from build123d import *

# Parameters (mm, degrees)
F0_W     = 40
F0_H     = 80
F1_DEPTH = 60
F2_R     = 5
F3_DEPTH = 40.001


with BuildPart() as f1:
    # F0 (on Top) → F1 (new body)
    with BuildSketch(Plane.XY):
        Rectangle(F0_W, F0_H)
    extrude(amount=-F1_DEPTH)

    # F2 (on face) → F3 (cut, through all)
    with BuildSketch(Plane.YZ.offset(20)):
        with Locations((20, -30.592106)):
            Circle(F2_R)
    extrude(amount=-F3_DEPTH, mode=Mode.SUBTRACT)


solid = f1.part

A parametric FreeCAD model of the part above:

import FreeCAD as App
import Part
import Sketcher
from FreeCAD import Vector

doc = App.newDocument("Part")
body = doc.addObject("PartDesign::Body", "Body")

sketch1 = body.newObject("Sketcher::SketchObject", "Sketch")
sketch1.AttachmentSupport = (doc.getObject("XY_Plane"), [""])
sketch1.MapMode = "FlatFace"
sketch1.addGeometry([
    Part.LineSegment(Vector(-20, 40, 0), Vector(-20, -40, 0)),
    Part.LineSegment(Vector(-20, -40, 0), Vector(20, -40, 0)),
    Part.LineSegment(Vector(20, -40, 0), Vector(20, 40, 0)),
    Part.LineSegment(Vector(20, 40, 0), Vector(-20, 40, 0)),
], False)
sketch1.addConstraint([
    Sketcher.Constraint("Coincident", 0, 2, 1, 1),
    Sketcher.Constraint("Coincident", 1, 2, 2, 1),
    Sketcher.Constraint("Coincident", 2, 2, 3, 1),
    Sketcher.Constraint("Coincident", 3, 2, 0, 1),
    Sketcher.Constraint("Vertical", 0),
    Sketcher.Constraint("Horizontal", 1),
    Sketcher.Constraint("Vertical", 2),
    Sketcher.Constraint("Horizontal", 3),
    Sketcher.Constraint("Symmetric", 0, 2, 2, 2, -1, 1),
    Sketcher.Constraint("DistanceX", 1, 1, 1, 2, 40.0),
    Sketcher.Constraint("DistanceY", 0, 2, 0, 1, 80.0),
])
pad1 = body.newObject("PartDesign::Pad", "Pad")
pad1.Profile = sketch1
pad1.Length = 60
pad1.Reversed = True

sketch2 = body.newObject("Sketcher::SketchObject", "Sketch001")
sketch2.AttachmentSupport = (doc.getObject("YZ_Plane"), [""])
sketch2.MapMode = "FlatFace"
sketch2.AttachmentOffset = App.Placement(Vector(0, 0, 20), App.Rotation())
sketch2.addGeometry(Part.Circle(Vector(20, -30.592106, 0), Vector(0, 0, 1), 5), False)
sketch2.addConstraint([
    Sketcher.Constraint("Diameter", 0, 10.0),
    Sketcher.Constraint("DistanceX", -1, 1, 0, 3, 20.0),
    Sketcher.Constraint("DistanceY", 0, 3, -1, 1, 30.592106),
])
pocket1 = body.newObject("PartDesign::Pocket", "Pocket")
pocket1.Profile = sketch2
pocket1.Type = "ThroughAll"

doc.recompute()
